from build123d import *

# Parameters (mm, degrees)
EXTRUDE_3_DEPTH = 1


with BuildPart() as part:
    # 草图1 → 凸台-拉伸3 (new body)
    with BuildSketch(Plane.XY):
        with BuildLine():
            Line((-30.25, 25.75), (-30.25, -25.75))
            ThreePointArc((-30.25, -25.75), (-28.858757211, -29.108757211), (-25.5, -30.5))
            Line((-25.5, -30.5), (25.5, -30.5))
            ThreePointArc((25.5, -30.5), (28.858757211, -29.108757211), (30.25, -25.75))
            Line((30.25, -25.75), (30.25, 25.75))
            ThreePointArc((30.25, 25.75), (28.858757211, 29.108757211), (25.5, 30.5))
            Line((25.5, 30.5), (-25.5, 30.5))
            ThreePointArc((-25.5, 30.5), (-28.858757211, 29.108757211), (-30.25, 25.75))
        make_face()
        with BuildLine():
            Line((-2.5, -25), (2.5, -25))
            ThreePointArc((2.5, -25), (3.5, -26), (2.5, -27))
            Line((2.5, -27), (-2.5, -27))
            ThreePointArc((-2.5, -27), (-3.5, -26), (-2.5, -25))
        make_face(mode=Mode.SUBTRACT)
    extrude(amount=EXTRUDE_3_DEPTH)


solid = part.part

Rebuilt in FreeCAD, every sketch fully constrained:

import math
import FreeCAD as App
import Part
import Sketcher

V = App.Vector

doc = App.newDocument("Part")
body = doc.addObject("PartDesign::Body", "Body")

# Sketch on XY plane
sketch1 = body.newObject("Sketcher::SketchObject", "Sketch")
sketch1.AttachmentSupport = (doc.getObject("XY_Plane"), [""])
sketch1.MapMode = "FlatFace"
sketch1.addGeometry([
    Part.LineSegment(V(-30.25, 25.75, 0), V(-30.25, -25.75, 0)),  # 0
    Part.ArcOfCircle(Part.Circle(V(-25.5, -25.75, 0), V(0, 0, 1), 4.75), math.radians(180), math.radians(270)),  # 1
    Part.LineSegment(V(-25.5, -30.5, 0), V(25.5, -30.5, 0)),  # 2
    Part.ArcOfCircle(Part.Circle(V(25.5, -25.75, 0), V(0, 0, 1), 4.75), math.radians(-90), math.radians(0)),  # 3
    Part.LineSegment(V(30.25, -25.75, 0), V(30.25, 25.75, 0)),  # 4
    Part.ArcOfCircle(Part.Circle(V(25.5, 25.75, 0), V(0, 0, 1), 4.75), math.radians(0), math.radians(90)),  # 5
    Part.LineSegment(V(25.5, 30.5, 0), V(-25.5, 30.5, 0)),  # 6
    Part.ArcOfCircle(Part.Circle(V(-25.5, 25.75, 0), V(0, 0, 1), 4.75), math.radians(90), math.radians(180)),  # 7
    Part.ArcOfCircle(Part.Circle(V(-2.5, -26, 0), V(0, 0, 1), 1), math.radians(90), math.radians(270)),  # 8
    Part.LineSegment(V(-2.5, -25, 0), V(2.5, -25, 0)),  # 9
    Part.ArcOfCircle(Part.Circle(V(2.5, -26, 0), V(0, 0, 1), 1), math.radians(-90), math.radians(90)),  # 10
    Part.LineSegment(V(2.5, -27, 0), V(-2.5, -27, 0)),  # 11
], False)
sketch1.addConstraint([
    Sketcher.Constraint("Tangent", 0, 2, 1, 1),
    Sketcher.Constraint("Tangent", 1, 2, 2, 1),
    Sketcher.Constraint("Tangent", 2, 2, 3, 1),
    Sketcher.Constraint("Tangent", 3, 2, 4, 1),
    Sketcher.Constraint("Tangent", 4, 2, 5, 1),
    Sketcher.Constraint("Tangent", 5, 2, 6, 1),
    Sketcher.Constraint("Tangent", 6, 2, 7, 1),
    Sketcher.Constraint("Tangent", 7, 2, 0, 1),
    Sketcher.Constraint("Tangent", 8, 1, 9, 1),
    Sketcher.Constraint("Tangent", 9, 2, 10, 2),
    Sketcher.Constraint("Tangent", 10, 1, 11, 1),
    Sketcher.Constraint("Tangent", 11, 2, 8, 2),
    Sketcher.Constraint("Vertical", 0),
    Sketcher.Constraint("Horizontal", 2),
    Sketcher.Constraint("Vertical", 4),
    Sketcher.Constraint("Horizontal", 6),
    Sketcher.Constraint("Horizontal", 9),
    Sketcher.Constraint("Horizontal", 11),
    Sketcher.Constraint("Equal", 1, 3),
    Sketcher.Constraint("Equal", 3, 5),
    Sketcher.Constraint("Equal", 5, 7),
    Sketcher.Constraint("Symmetric", 1, 3, 5, 3, -1, 1),
    Sketcher.Constraint("Radius", 8, 1.0),
    Sketcher.Constraint("DistanceX", 2, 1, 2, 2, 51.0),
    Sketcher.Constraint("DistanceX", 9, 1, 9, 2, 5.0),
    Sketcher.Constraint("Radius", 1, 4.75),
    Sketcher.Constraint("DistanceY", 0, 2, 0, 1, 51.5),
    Sketcher.Constraint("DistanceY", 8, 3, -1, 1, 26.0),
    Sketcher.Constraint("DistanceX", 1, 3, 8, 3, 23.0),
])
pad1 = body.newObject("PartDesign::Pad", "Pad")
pad1.Profile = sketch1
pad1.Length = 1

doc.recompute()
